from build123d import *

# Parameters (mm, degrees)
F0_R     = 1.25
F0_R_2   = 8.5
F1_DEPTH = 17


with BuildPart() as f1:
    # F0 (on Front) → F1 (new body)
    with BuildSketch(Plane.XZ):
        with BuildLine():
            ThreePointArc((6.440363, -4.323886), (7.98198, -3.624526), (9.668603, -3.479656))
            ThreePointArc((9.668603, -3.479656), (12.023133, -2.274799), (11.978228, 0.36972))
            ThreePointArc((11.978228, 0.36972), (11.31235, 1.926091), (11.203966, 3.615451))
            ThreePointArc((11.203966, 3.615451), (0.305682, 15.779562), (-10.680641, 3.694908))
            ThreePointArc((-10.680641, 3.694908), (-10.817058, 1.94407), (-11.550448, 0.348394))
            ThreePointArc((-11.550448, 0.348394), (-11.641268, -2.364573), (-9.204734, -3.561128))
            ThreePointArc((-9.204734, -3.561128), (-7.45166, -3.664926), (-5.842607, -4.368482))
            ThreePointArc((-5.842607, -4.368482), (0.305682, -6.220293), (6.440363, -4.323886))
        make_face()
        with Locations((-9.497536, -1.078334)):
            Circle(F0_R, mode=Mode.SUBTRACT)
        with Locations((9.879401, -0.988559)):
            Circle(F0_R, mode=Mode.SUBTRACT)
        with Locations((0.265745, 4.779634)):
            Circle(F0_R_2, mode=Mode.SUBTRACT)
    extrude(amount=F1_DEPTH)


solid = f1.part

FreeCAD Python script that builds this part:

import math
import FreeCAD as App
import Part
import Sketcher

doc = App.newDocument("Part")
params = doc.addObject("Spreadsheet::Sheet", "Params")
for row, (alias, value) in enumerate([
    ("sketch1_diameter", "17 mm"),
    ("sketch1_radius", "5.000002 mm"),
    ("sketch1_radius2", "11 mm"),
    ("sketch1_radius3", "10.999999 mm"),
    ("sketch1_diameter2", "2.5 mm"),
    ("pad1_length", "17 mm"),
], start=1):
    params.set(f"A{row}", alias)
    params.set(f"B{row}", "=" + value)
    params.setAlias(f"B{row}", alias)

body = doc.addObject("PartDesign::Body", "Body")

sketch1 = doc.addObject("Sketcher::SketchObject", "Sketch")
body.addObject(sketch1)
sketch1.AttachmentSupport = (doc.XZ_Plane, [""])
sketch1.MapMode = "FlatFace"
sketch1.addGeometry([
    Part.ArcOfCircle(Part.Circle(App.Vector(9.247008, -8.461853, 0), App.Vector(0, 0, 1), 5.000003), math.radians(85.163139), math.radians(124.147741)),
    Part.ArcOfCircle(Part.Circle(App.Vector(9.879401, -0.98856, 0), App.Vector(0, 0, 1), 2.499999), math.radians(-94.836887), math.radians(32.909387)),
    Part.ArcOfCircle(Part.Circle(App.Vector(16.175886, 3.086277, 0), App.Vector(0, 0, 1), 5.000002), math.radians(173.924736), math.radians(212.909333)),
    Part.ArcOfCircle(Part.Circle(App.Vector(0.265745, 4.779635, 0), App.Vector(0, 0, 1), 11), math.radians(-6.075269), math.radians(185.65922)),
    Part.ArcOfCircle(Part.Circle(App.Vector(-15.656277, 3.201852, 0), App.Vector(0, 0, 1), 5.000006), math.radians(-34.798429), math.radians(5.659191)),
    Part.ArcOfCircle(Part.Circle(App.Vector(-9.497535, -1.078333, 0), App.Vector(0, 0, 1), 2.5), math.radians(145.201579), math.radians(276.725952)),
    Part.ArcOfCircle(Part.Circle(App.Vector(-8.619133, -8.526724, 0), App.Vector(0, 0, 1), 5.000007), math.radians(56.268317), math.radians(96.725924)),
    Part.ArcOfCircle(Part.Circle(App.Vector(0.265745, 4.779634, 0), App.Vector(0, 0, 1), 10.999999), math.radians(-123.731708), math.radians(-55.852244)),
    Part.Circle(App.Vector(-9.497536, -1.078334, 0), App.Vector(0, 0, 1), 1.25),
    Part.Circle(App.Vector(9.879401, -0.988559, 0), App.Vector(0, 0, 1), 1.25),
    Part.Circle(App.Vector(0.265745, 4.779634, 0), App.Vector(0, 0, 1), 8.5),
], False)
sketch1.addConstraint([
    Sketcher.Constraint("Coincident", 0, 1, 1, 1),
    Sketcher.Constraint("Coincident", 1, 2, 2, 2),
    Sketcher.Constraint("Coincident", 2, 1, 3, 1),
    Sketcher.Constraint("Coincident", 3, 2, 4, 2),
    Sketcher.Constraint("Coincident", 4, 1, 5, 1),
    Sketcher.Constraint("Coincident", 5, 2, 6, 2),
    Sketcher.Constraint("Coincident", 6, 1, 7, 1),
    Sketcher.Constraint("Coincident", 7, 2, 0, 2),
    Sketcher.Constraint("Coincident", 7, 3, 3, 3),
    Sketcher.Constraint("Coincident", 8, 3, 5, 3),
    Sketcher.Constraint("Coincident", 9, 3, 1, 3),
    Sketcher.Constraint("Coincident", 10, 3, 3, 3),
    Sketcher.Constraint("Diameter", 10, 17.0),
    Sketcher.Constraint("Radius", 2, 5.000002),
    Sketcher.Constraint("Radius", 3, 11.0),
    Sketcher.Constraint("Radius", 7, 10.999999),
    Sketcher.Constraint("Diameter", 8, 2.5),
    Sketcher.Constraint("Diameter", 9, 2.5),
    Sketcher.Constraint("Radius", 1, 2.499999),
    Sketcher.Constraint("Radius", 5, 2.5),
    Sketcher.Constraint("Radius", 0, 5.000003),
    Sketcher.Constraint("Radius", 4, 5.000006),
    Sketcher.Constraint("Radius", 6, 5.000007),
    Sketcher.Constraint("DistanceX", -1, 1, 1, 3, 9.879401),
    Sketcher.Constraint("DistanceX", 0, 1, 1, 3, 0.210798),
    Sketcher.Constraint("DistanceX", 8, 3, 5, 2, 0.292802),
    Sketcher.Constraint("DistanceX", 5, 2, 6, 3, 0.585601),
    Sketcher.Constraint("DistanceX", -1, 1, 0, 3, 9.247008),
    Sketcher.Constraint("DistanceY", 1, 3, -1, 1, 0.98856),
    Sketcher.Constraint("DistanceX", -1, 1, 1, 2, 11.978228),
    Sketcher.Constraint("DistanceY", -1, 1, 2, 1, 3.615451),
    Sketcher.Constraint("DistanceX", 3, 2, -1, 1, 10.680641),
    Sketcher.Constraint("DistanceX", 4, 1, -1, 1, 11.550448),
    Sketcher.Constraint("DistanceY", 6, 1, -1, 1, 4.368482),
    Sketcher.Constraint("DistanceX", 0, 3, 2, 3, 6.928878),
    Sketcher.Constraint("DistanceX", 4, 3, 3, 3, 15.922022),
    Sketcher.Constraint("DistanceX", 7, 2, 0, 1, 3.22824),
])
sketch1.setExpression("Constraints[12]", "Params.sketch1_diameter")
sketch1.setExpression("Constraints[13]", "Params.sketch1_radius")
sketch1.setExpression("Constraints[14]", "Params.sketch1_radius2")
sketch1.setExpression("Constraints[15]", "Params.sketch1_radius3")
sketch1.setExpression("Constraints[16]", "Params.sketch1_diameter2")
pad1 = doc.addObject("PartDesign::Pad", "Pad")
body.addObject(pad1)
pad1.Profile = sketch1
pad1.setExpression("Length", "Params.pad1_length")

doc.recompute()
